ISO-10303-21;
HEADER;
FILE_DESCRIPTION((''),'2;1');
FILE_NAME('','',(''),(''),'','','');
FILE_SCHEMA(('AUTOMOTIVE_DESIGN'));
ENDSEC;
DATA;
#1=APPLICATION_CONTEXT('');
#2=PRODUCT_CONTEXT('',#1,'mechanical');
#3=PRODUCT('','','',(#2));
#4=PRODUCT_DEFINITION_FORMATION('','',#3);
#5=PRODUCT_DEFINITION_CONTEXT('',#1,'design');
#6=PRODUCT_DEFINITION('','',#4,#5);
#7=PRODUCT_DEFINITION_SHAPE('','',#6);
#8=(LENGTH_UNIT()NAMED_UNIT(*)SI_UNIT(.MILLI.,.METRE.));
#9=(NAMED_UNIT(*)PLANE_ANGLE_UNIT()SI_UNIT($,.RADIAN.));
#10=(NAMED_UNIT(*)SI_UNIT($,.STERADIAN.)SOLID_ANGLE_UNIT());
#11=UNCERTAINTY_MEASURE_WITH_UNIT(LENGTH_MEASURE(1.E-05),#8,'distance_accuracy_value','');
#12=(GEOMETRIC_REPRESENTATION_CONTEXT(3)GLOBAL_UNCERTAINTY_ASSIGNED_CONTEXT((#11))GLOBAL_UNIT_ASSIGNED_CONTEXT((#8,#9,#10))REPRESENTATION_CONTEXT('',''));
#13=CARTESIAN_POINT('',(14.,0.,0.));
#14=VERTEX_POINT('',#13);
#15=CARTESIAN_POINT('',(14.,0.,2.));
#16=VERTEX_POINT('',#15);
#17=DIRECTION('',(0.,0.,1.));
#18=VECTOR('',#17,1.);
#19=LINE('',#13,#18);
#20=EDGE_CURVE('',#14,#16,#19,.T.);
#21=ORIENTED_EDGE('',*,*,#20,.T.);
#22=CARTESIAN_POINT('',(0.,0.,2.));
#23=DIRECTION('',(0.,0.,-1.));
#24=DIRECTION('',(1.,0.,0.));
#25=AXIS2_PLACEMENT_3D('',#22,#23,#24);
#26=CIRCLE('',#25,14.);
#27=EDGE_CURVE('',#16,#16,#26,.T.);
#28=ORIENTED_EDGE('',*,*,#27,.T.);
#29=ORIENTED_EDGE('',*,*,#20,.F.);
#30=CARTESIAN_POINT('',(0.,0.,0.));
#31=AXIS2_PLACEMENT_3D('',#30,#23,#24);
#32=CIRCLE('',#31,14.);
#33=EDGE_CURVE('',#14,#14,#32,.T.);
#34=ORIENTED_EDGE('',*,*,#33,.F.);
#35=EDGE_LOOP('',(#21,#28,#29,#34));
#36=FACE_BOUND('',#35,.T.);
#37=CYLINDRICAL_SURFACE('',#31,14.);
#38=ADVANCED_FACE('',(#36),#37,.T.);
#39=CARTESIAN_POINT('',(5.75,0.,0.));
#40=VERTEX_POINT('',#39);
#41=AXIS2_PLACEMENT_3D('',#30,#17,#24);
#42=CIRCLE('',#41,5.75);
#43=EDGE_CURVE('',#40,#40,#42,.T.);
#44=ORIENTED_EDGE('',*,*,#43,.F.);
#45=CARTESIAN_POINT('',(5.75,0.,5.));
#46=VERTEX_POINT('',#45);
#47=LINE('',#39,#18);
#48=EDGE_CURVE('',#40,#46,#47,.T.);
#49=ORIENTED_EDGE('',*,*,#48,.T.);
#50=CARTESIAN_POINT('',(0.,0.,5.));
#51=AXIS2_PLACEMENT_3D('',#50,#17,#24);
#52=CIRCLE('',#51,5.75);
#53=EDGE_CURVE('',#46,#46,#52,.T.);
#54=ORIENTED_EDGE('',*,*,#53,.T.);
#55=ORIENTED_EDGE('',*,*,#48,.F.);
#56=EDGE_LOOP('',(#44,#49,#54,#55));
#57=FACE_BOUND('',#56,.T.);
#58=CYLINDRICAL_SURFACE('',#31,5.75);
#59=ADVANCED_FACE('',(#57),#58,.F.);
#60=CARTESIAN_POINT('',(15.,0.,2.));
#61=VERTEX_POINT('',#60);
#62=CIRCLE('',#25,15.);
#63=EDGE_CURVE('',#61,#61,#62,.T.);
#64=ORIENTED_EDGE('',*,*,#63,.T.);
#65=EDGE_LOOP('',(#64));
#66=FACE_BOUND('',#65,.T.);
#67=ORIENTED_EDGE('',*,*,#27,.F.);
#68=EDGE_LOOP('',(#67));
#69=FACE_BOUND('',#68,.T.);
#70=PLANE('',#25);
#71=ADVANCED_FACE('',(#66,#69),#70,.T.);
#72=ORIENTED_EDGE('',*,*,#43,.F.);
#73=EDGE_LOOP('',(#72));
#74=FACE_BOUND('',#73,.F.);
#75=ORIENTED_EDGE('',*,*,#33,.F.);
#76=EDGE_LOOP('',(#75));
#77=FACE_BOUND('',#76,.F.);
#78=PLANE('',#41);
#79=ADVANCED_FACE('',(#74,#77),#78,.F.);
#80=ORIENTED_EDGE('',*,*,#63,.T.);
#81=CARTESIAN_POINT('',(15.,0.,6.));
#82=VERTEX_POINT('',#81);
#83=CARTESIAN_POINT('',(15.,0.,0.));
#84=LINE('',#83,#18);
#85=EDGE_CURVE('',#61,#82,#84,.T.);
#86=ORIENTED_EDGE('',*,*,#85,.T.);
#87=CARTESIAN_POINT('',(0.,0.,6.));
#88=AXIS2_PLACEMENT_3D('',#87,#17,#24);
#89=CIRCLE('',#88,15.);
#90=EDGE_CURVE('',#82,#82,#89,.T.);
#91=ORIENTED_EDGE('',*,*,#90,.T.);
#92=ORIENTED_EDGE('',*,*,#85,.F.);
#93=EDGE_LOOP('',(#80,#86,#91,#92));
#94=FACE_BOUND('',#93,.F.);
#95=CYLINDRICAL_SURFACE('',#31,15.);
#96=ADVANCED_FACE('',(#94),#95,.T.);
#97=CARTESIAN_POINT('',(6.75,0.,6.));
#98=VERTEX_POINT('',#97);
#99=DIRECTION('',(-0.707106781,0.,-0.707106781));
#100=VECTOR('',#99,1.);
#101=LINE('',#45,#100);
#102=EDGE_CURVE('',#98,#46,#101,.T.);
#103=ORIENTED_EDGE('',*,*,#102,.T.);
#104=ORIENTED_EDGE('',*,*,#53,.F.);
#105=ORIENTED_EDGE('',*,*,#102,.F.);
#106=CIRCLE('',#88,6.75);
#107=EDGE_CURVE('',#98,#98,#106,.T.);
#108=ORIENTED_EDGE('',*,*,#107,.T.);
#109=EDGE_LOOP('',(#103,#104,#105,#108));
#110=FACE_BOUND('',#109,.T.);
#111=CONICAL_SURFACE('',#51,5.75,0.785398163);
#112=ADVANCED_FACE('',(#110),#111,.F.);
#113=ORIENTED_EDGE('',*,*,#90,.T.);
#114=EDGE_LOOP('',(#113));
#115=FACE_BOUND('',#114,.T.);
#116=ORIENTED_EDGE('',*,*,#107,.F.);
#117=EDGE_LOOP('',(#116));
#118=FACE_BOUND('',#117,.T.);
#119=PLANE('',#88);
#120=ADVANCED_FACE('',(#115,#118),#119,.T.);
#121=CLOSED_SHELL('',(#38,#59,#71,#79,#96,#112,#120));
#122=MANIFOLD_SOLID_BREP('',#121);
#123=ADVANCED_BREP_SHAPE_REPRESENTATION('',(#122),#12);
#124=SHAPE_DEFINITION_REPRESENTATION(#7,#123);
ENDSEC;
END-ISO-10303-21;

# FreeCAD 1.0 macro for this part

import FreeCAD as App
import Part
import Sketcher
from FreeCAD import Vector


def edges_at(feature, points):
    """Names of the edges that pass closest to the given points."""
    edges = feature.Shape.Edges
    near = lambda p: min(range(len(edges)), key=lambda i: edges[i].distToShape(Part.Vertex(*p))[0])
    return sorted({f"Edge{near(p) + 1}" for p in points})

doc = App.newDocument("Part")
params = doc.addObject("Spreadsheet::Sheet", "Params")
for row, (alias, value) in enumerate([
    ("sketch1_diameter", "30 mm"),
    ("sketch1_diameter2", "11.5 mm"),
    ("pad1_length", "6 mm"),
    ("sketch2_diameter", "30 mm"),
    ("sketch2_diameter2", "28 mm"),
    ("pocket1_length", "2 mm"),
    ("chamfer_size", "1 mm"),
], start=1):
    params.set(f"A{row}", alias)
    params.set(f"B{row}", "=" + value)
    params.setAlias(f"B{row}", alias)

body = doc.addObject("PartDesign::Body", "Body")

# Sketch on XY plane
sketch1 = body.newObject("Sketcher::SketchObject", "Sketch")
sketch1.AttachmentSupport = (doc.getObject("XY_Plane"), [""])
sketch1.MapMode = "FlatFace"
sketch1.addGeometry(Part.Circle(Vector(0, 0, 0), Vector(0, 0, 1), 15), False)
sketch1.addGeometry(Part.Circle(Vector(0, 0, 0), Vector(0, 0, 1), 6), False)
sketch1.addConstraint(Sketcher.Constraint("Coincident", 0, 3, -1, 1))
sketch1.addConstraint(Sketcher.Constraint("Coincident", 1, 3, -1, 1))
sketch1.addConstraint(Sketcher.Constraint("Diameter", 0, 30.0))
sketch1.addConstraint(Sketcher.Constraint("Diameter", 1, 11.5))
sketch1.setExpression("Constraints[2]", "Params.sketch1_diameter")
sketch1.setExpression("Constraints[3]", "Params.sketch1_diameter2")
pad1 = body.newObject("PartDesign::Pad", "Pad")
pad1.Profile = sketch1
pad1.setExpression("Length", "Params.pad1_length")

# Sketch on XY plane
sketch2 = body.newObject("Sketcher::SketchObject", "Sketch001")
sketch2.AttachmentSupport = (doc.getObject("XY_Plane"), [""])
sketch2.MapMode = "FlatFace"
sketch2.addGeometry(Part.Circle(Vector(0, 0, 0), Vector(0, 0, 1), 15), False)
sketch2.addGeometry(Part.Circle(Vector(0, 0, 0), Vector(0, 0, 1), 14), False)
sketch2.addConstraint(Sketcher.Constraint("Coincident", 0, 3, -1, 1))
sketch2.addConstraint(Sketcher.Constraint("Coincident", 1, 3, -1, 1))
sketch2.addConstraint(Sketcher.Constraint("Diameter", 0, 30.0))
sketch2.addConstraint(Sketcher.Constraint("Diameter", 1, 28.0))
sketch2.setExpression("Constraints[2]", "Params.sketch2_diameter")
sketch2.setExpression("Constraints[3]", "Params.sketch2_diameter2")
pocket1 = body.newObject("PartDesign::Pocket", "Pocket")
pocket1.Profile = sketch2
pocket1.setExpression("Length", "Params.pocket1_length")
pocket1.Reversed = True
doc.recompute()

chamfer = body.newObject("PartDesign::Chamfer", "Chamfer")
chamfer.Base = (pocket1, edges_at(pocket1, [(-5.75, 0, 6)]))
chamfer.setExpression("Size", "Params.chamfer_size")

doc.recompute()
